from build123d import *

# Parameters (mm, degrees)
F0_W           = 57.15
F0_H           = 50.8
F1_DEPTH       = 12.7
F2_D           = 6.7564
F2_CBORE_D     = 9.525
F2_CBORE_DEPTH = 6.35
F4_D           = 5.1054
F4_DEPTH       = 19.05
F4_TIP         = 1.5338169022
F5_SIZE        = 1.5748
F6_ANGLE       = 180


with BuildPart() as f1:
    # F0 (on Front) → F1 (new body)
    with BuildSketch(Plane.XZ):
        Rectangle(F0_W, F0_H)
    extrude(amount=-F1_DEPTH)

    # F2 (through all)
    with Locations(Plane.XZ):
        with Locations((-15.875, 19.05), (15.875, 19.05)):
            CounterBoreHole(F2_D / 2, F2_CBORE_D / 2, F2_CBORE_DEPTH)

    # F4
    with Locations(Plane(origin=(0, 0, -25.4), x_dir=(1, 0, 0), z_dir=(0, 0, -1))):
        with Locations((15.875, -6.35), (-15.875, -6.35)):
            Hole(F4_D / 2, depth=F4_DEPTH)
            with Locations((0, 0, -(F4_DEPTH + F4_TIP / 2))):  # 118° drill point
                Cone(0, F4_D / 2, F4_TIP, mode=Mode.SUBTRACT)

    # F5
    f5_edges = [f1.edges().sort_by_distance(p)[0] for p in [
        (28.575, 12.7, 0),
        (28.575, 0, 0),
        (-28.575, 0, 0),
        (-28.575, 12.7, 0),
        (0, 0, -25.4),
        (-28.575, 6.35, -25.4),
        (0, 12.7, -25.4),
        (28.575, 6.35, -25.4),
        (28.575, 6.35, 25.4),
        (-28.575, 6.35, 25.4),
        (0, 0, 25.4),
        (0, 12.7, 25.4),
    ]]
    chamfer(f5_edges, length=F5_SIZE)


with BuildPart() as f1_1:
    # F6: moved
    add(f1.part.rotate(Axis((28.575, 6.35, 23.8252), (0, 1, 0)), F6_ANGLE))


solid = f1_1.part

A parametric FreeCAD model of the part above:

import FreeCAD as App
import Part
import Sketcher

V = App.Vector
Q = App.Units.Quantity


def edges_at(feature, points):
    """Names of the edges that pass closest to the given points."""
    edges = feature.Shape.Edges
    near = lambda p: min(range(len(edges)), key=lambda i: edges[i].distToShape(Part.Vertex(*p))[0])
    return sorted({f"Edge{near(p) + 1}" for p in points})

doc = App.newDocument("Part")
body = doc.addObject("PartDesign::Body", "Body")

sketch1 = body.newObject("Sketcher::SketchObject", "Sketch")
sketch1.AttachmentSupport = (doc.getObject("XZ_Plane"), [""])
sketch1.MapMode = "FlatFace"
sketch1.addGeometry(Part.LineSegment(V(-28.575, 25.4, 0), V(-28.575, -25.4, 0)), False)
sketch1.addGeometry(Part.LineSegment(V(-28.575, -25.4, 0), V(28.575, -25.4, 0)), False)
sketch1.addGeometry(Part.LineSegment(V(28.575, -25.4, 0), V(28.575, 25.4, 0)), False)
sketch1.addGeometry(Part.LineSegment(V(28.575, 25.4, 0), V(-28.575, 25.4, 0)), False)
sketch1.addConstraint(Sketcher.Constraint("Coincident", 0, 2, 1, 1))
sketch1.addConstraint(Sketcher.Constraint("Coincident", 1, 2, 2, 1))
sketch1.addConstraint(Sketcher.Constraint("Coincident", 2, 2, 3, 1))
sketch1.addConstraint(Sketcher.Constraint("Coincident", 3, 2, 0, 1))
sketch1.addConstraint(Sketcher.Constraint("Vertical", 0))
sketch1.addConstraint(Sketcher.Constraint("Horizontal", 1))
sketch1.addConstraint(Sketcher.Constraint("Vertical", 2))
sketch1.addConstraint(Sketcher.Constraint("Horizontal", 3))
sketch1.addConstraint(Sketcher.Constraint("Symmetric", 0, 2, 2, 2, -1, 1))
sketch1.addConstraint(Sketcher.Constraint("DistanceY", 0, 2, 0, 1, Q("2 in")))
sketch1.addConstraint(Sketcher.Constraint("DistanceX", 1, 1, 1, 2, Q("2.25 in")))
pad1 = body.newObject("PartDesign::Pad", "Pad")
pad1.Profile = sketch1
pad1.Length = Q("0.5 in")
pad1.Reversed = True

sketch2 = body.newObject("Sketcher::SketchObject", "Sketch001")
sketch2.AttachmentSupport = (doc.getObject("XZ_Plane"), [""])
sketch2.MapMode = "FlatFace"
sketch2.addGeometry(Part.Circle(V(-15.875, 19.05, 0), V(0, 0, 1), 3.3782), False)
sketch2.addGeometry(Part.Circle(V(15.875, 19.05, 0), V(0, 0, 1), 3.3782), False)
sketch2.addConstraint(Sketcher.Constraint("Equal", 0, 1))
sketch2.addConstraint(Sketcher.Constraint("Symmetric", 0, 3, 1, 3, -2))
sketch2.addConstraint(Sketcher.Constraint("Diameter", 0, Q("0.266 in")))
sketch2.addConstraint(Sketcher.Constraint("DistanceY", -1, 1, 0, 3, Q("0.75 in")))
sketch2.addConstraint(Sketcher.Constraint("DistanceX", 0, 3, 1, 3, Q("1.25 in")))
doc.recompute()
hole = body.newObject("PartDesign::Hole", "Hole")
hole.Profile = sketch2
hole.ThreadType = "None"
hole.Diameter = Q("0.266 in")
hole.DepthType = "ThroughAll"
hole.HoleCutType = "Counterbore"
hole.HoleCutDiameter = Q("0.375 in")
hole.HoleCutDepth = Q("0.25 in")

sketch3 = body.newObject("Sketcher::SketchObject", "Sketch002")
sketch3.AttachmentSupport = (doc.getObject("XY_Plane"), [""])
sketch3.MapMode = "FlatFace"
sketch3.AttachmentOffset = App.Placement(V(0, 0, -1 * 25.4), App.Rotation())
sketch3.addGeometry(Part.Circle(V(15.875, 6.35, 0), V(0, 0, 1), 2.5527), False)
sketch3.addGeometry(Part.Circle(V(-15.875, 6.35, 0), V(0, 0, 1), 2.5527), False)
sketch3.addConstraint(Sketcher.Constraint("Equal", 0, 1))
sketch3.addConstraint(Sketcher.Constraint("Symmetric", 0, 3, 1, 3, -2))
sketch3.addConstraint(Sketcher.Constraint("Diameter", 0, Q("0.201 in")))
sketch3.addConstraint(Sketcher.Constraint("DistanceY", -1, 1, 0, 3, Q("0.25 in")))
sketch3.addConstraint(Sketcher.Constraint("DistanceX", 1, 3, 0, 3, Q("1.25 in")))
doc.recompute()
hole2 = body.newObject("PartDesign::Hole", "Hole001")
hole2.Profile = sketch3
hole2.ThreadType = "None"
hole2.Diameter = Q("0.201 in")
hole2.DepthType = "Dimension"
hole2.Depth = Q("0.75 in")
hole2.DrillPoint = "Angled"
hole2.DrillPointAngle = 118
hole2.Reversed = True
doc.recompute()

chamfer = body.newObject("PartDesign::Chamfer", "Chamfer")
chamfer.Base = (hole2, edges_at(hole2, [
    (28.575, 12.7, 0),
    (28.575, 0, 0),
    (-28.575, 0, 0),
    (-28.575, 12.7, 0),
    (0, 0, -25.4),
    (-28.575, 6.35, -25.4),
    (0, 12.7, -25.4),
    (28.575, 6.35, -25.4),
    (28.575, 6.35, 25.4),
    (-28.575, 6.35, 25.4),
    (0, 0, 25.4),
    (0, 12.7, 25.4),
]))
chamfer.Size = Q("0.062 in")
body2 = doc.addObject("PartDesign::Body", "Body001")
doc.recompute()

body.Placement = App.Placement(V(57.15, 0, 47.6504), App.Rotation(V(0, 1, 0), 180))
boolean = body2.newObject("PartDesign::Boolean", "Boolean")
boolean.Type = "Fuse"
boolean.addObjects([body])

doc.recompute()
